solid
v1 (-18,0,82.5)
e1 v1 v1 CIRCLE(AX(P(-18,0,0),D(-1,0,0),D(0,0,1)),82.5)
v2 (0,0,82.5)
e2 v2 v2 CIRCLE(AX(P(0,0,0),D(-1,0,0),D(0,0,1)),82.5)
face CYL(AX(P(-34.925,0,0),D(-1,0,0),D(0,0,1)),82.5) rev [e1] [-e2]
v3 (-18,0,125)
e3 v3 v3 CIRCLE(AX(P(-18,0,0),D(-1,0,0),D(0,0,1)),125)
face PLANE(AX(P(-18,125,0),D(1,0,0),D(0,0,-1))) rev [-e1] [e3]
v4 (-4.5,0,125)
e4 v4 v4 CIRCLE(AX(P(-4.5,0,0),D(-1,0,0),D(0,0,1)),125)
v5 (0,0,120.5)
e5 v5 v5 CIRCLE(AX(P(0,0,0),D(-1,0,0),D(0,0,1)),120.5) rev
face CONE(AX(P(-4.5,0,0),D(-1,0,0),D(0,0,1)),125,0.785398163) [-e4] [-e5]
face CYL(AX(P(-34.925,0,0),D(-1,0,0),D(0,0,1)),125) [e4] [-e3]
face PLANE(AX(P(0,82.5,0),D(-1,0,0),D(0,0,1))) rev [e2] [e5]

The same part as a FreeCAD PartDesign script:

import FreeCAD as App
import Part
import Sketcher

V = App.Vector
Q = App.Units.Quantity


def edges_at(feature, points):
    """Names of the edges that pass closest to the given points."""
    edges = feature.Shape.Edges
    near = lambda p: min(range(len(edges)), key=lambda i: edges[i].distToShape(Part.Vertex(*p))[0])
    return sorted({f"Edge{near(p) + 1}" for p in points})


def add_polygon(sketch, points):
    """Adds a closed chain of lines whose ends are joined by coincident constraints."""
    first, n = sketch.GeometryCount, len(points)
    for a, b in zip(points, points[1:] + points[:1]):
        sketch.addGeometry(Part.LineSegment(App.Vector(*a, 0), App.Vector(*b, 0)), False)
    for i in range(n):
        sketch.addConstraint(Sketcher.Constraint("Coincident", first + i, 2, first + (i + 1) % n, 1))

doc = App.newDocument("Part")
body = doc.addObject("PartDesign::Body", "Body")

sketch1 = body.newObject("Sketcher::SketchObject", "Sketch")
sketch1.AttachmentSupport = (doc.getObject("XY_Plane"), [""])
sketch1.MapMode = "FlatFace"
add_polygon(sketch1, [(-18, 125), (-18, 82), (0, 82), (0, 125)])
sketch1.addConstraint([
    Sketcher.Constraint("Vertical", 0),
    Sketcher.Constraint("Horizontal", 1),
    Sketcher.Constraint("Vertical", 2),
    Sketcher.Constraint("Horizontal", 3),
    Sketcher.Constraint("PointOnObject", 1, 2, -2),
    Sketcher.Constraint("DistanceX", 1, 1, 1, 2, Q("18 mm")),
    Sketcher.Constraint("DistanceY", 0, 2, 0, 1, Q("42.5 mm")),
    Sketcher.Constraint("DistanceY", -1, 1, 2, 2, Q("125 mm")),
])
revolution = body.newObject("PartDesign::Revolution", "Revolution")
revolution.Profile = sketch1
revolution.ReferenceAxis = (sketch1, ["H_Axis"])
revolution.Angle = 360
doc.recompute()

chamfer = body.newObject("PartDesign::Chamfer", "Chamfer")
chamfer.Base = (revolution, edges_at(revolution, [(0, 0, -125)]))
chamfer.Size = 4.5

doc.recompute()
